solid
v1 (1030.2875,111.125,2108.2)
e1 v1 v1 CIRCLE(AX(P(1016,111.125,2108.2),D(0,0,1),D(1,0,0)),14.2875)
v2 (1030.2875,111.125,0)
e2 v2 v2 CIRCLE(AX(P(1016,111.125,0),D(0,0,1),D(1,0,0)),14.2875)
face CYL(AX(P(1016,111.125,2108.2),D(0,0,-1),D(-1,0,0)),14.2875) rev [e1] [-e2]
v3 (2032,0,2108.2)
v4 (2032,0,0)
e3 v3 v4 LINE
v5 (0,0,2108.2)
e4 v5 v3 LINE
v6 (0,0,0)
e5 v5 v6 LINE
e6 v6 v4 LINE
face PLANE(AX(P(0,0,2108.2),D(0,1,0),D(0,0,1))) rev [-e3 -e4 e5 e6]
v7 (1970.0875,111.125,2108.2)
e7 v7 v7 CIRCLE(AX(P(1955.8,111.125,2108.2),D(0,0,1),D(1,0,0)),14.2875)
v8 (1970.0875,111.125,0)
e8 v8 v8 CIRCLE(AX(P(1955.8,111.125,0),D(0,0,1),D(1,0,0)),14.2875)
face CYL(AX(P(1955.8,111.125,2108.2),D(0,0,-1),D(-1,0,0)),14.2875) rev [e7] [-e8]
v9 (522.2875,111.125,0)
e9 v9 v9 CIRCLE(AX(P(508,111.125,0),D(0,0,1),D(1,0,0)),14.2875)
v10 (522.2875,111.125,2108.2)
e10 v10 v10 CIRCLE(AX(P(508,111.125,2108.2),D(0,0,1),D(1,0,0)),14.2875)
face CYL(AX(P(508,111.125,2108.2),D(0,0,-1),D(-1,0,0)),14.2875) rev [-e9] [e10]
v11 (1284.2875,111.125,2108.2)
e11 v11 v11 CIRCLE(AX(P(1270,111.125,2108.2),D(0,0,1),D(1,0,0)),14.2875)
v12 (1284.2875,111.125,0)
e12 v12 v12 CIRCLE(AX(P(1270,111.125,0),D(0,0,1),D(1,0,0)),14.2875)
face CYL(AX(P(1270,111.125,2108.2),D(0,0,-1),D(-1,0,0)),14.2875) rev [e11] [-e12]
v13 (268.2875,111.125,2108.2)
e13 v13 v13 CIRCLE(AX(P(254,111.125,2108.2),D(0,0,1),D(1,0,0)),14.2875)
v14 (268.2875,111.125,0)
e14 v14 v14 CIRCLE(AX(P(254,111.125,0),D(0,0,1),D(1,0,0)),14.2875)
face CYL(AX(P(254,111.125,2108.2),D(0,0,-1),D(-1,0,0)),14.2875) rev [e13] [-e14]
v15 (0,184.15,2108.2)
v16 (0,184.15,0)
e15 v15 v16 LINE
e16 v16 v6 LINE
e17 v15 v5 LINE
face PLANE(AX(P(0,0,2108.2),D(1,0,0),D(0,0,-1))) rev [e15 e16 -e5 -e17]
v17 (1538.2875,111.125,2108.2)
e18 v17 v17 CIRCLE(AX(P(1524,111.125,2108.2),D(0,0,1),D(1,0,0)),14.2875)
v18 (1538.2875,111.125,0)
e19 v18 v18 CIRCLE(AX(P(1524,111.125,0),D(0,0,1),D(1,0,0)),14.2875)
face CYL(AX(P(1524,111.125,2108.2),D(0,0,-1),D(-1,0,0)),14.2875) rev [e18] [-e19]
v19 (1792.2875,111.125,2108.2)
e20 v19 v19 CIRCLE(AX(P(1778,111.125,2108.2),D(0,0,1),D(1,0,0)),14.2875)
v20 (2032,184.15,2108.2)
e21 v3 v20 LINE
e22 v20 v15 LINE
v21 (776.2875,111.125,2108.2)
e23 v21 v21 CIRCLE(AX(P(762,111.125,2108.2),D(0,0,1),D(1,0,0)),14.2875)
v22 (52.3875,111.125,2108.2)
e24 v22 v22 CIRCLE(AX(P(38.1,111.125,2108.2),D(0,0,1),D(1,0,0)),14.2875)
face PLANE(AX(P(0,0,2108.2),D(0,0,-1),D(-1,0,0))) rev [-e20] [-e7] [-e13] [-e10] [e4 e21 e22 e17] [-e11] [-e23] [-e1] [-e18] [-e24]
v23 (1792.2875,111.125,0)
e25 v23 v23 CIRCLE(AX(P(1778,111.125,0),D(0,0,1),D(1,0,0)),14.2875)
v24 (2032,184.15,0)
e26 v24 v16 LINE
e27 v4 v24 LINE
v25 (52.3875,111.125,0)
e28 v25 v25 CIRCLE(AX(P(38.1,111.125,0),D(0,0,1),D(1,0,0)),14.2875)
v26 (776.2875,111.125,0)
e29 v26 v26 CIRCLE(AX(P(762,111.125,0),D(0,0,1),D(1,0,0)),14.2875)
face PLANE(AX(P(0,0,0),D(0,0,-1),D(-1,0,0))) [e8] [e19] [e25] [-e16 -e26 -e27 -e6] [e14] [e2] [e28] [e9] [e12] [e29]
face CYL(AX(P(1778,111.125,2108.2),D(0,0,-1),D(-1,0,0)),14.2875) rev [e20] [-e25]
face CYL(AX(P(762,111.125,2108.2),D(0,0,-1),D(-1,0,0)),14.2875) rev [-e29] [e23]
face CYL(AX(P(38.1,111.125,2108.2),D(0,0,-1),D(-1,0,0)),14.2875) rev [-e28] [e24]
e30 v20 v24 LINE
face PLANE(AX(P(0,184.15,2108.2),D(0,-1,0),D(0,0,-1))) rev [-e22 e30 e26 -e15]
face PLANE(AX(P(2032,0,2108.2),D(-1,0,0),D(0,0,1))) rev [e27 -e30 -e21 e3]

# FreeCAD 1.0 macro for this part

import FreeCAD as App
import Part
import Sketcher

V = App.Vector
Q = App.Units.Quantity

doc = App.newDocument("Part")
body = doc.addObject("PartDesign::Body", "Body")

# Sketch on XY plane
sketch1 = body.newObject("Sketcher::SketchObject", "Sketch")
sketch1.AttachmentSupport = (doc.getObject("XY_Plane"), [""])
sketch1.MapMode = "FlatFace"
sketch1.addGeometry([
    Part.LineSegment(V(0, 184.15, 0), V(0, 0, 0)),
    Part.LineSegment(V(0, 0, 0), V(2032, 0, 0)),
    Part.LineSegment(V(2032, 0, 0), V(2032, 184.15, 0)),
    Part.LineSegment(V(2032, 184.15, 0), V(0, 184.15, 0)),
], False)
sketch1.addConstraint([
    Sketcher.Constraint("Coincident", 0, 2, 1, 1),
    Sketcher.Constraint("Coincident", 1, 2, 2, 1),
    Sketcher.Constraint("Coincident", 2, 2, 3, 1),
    Sketcher.Constraint("Coincident", 3, 2, 0, 1),
    Sketcher.Constraint("Vertical", 0),
    Sketcher.Constraint("Horizontal", 1),
    Sketcher.Constraint("Vertical", 2),
    Sketcher.Constraint("Horizontal", 3),
    Sketcher.Constraint("Coincident", 0, 2, -1, 1),
    Sketcher.Constraint("DistanceX", 1, 1, 1, 2, Q("80 in")),
    Sketcher.Constraint("DistanceY", 0, 2, 0, 1, Q("7.25 in")),
])
pad1 = body.newObject("PartDesign::Pad", "Pad")
pad1.Profile = sketch1
pad1.Length = Q("83 in")

# Sketch on XY plane
sketch2 = body.newObject("Sketcher::SketchObject", "Sketch001")
sketch2.AttachmentSupport = (doc.getObject("XY_Plane"), [""])
sketch2.MapMode = "FlatFace"
sketch2.addGeometry([
    Part.Circle(V(38.1, 111.125, 0), V(0, 0, 1), 14.2875),  # 0
    Part.Circle(V(254, 111.125, 0), V(0, 0, 1), 14.2875),  # 1
    Part.Circle(V(508, 111.125, 0), V(0, 0, 1), 14.2875),  # 2
    Part.Circle(V(762, 111.125, 0), V(0, 0, 1), 14.2875),  # 3
    Part.Circle(V(1016, 111.125, 0), V(0, 0, 1), 14.2875),  # 4
    Part.Circle(V(1270, 111.125, 0), V(0, 0, 1), 14.2875),  # 5
    Part.Circle(V(1524, 111.125, 0), V(0, 0, 1), 14.2875),  # 6
    Part.Circle(V(1778, 111.125, 0), V(0, 0, 1), 14.2875),  # 7
    Part.Circle(V(1955.8, 111.125, 0), V(0, 0, 1), 14.2875),  # 8
], False)
sketch2.addConstraint([
    Sketcher.Constraint("Equal", 0, 1),
    Sketcher.Constraint("Equal", 1, 2),
    Sketcher.Constraint("Equal", 2, 3),
    Sketcher.Constraint("Equal", 3, 4),
    Sketcher.Constraint("Equal", 4, 5),
    Sketcher.Constraint("Equal", 5, 6),
    Sketcher.Constraint("Equal", 6, 7),
    Sketcher.Constraint("Equal", 7, 8),
    Sketcher.Constraint("Horizontal", 0, 3, 1, 3),
    Sketcher.Constraint("Horizontal", 1, 3, 2, 3),
    Sketcher.Constraint("Horizontal", 2, 3, 3, 3),
    Sketcher.Constraint("Horizontal", 3, 3, 4, 3),
    Sketcher.Constraint("Horizontal", 4, 3, 5, 3),
    Sketcher.Constraint("Horizontal", 5, 3, 6, 3),
    Sketcher.Constraint("Horizontal", 6, 3, 7, 3),
    Sketcher.Constraint("Horizontal", 7, 3, 8, 3),
    Sketcher.Constraint("Diameter", 0, Q("1.125 in")),
    Sketcher.Constraint("DistanceX", -1, 1, 1, 3, Q("10 in")),
    Sketcher.Constraint("DistanceX", -1, 1, 2, 3, Q("20 in")),
    Sketcher.Constraint("DistanceX", -1, 1, 3, 3, Q("30 in")),
    Sketcher.Constraint("DistanceX", -1, 1, 4, 3, Q("40 in")),
    Sketcher.Constraint("DistanceX", -1, 1, 5, 3, Q("50 in")),
    Sketcher.Constraint("DistanceX", -1, 1, 6, 3, Q("60 in")),
    Sketcher.Constraint("DistanceX", -1, 1, 7, 3, Q("70 in")),
    Sketcher.Constraint("DistanceX", -1, 1, 8, 3, Q("77 in")),
    Sketcher.Constraint("DistanceX", -1, 1, 0, 3, Q("1.5 in")),
    Sketcher.Constraint("DistanceY", -1, 1, 0, 3, Q("4.375 in")),
])
pocket1 = body.newObject("PartDesign::Pocket", "Pocket")
pocket1.Profile = sketch2
pocket1.Type = "ThroughAll"
pocket1.Reversed = True

doc.recompute()
